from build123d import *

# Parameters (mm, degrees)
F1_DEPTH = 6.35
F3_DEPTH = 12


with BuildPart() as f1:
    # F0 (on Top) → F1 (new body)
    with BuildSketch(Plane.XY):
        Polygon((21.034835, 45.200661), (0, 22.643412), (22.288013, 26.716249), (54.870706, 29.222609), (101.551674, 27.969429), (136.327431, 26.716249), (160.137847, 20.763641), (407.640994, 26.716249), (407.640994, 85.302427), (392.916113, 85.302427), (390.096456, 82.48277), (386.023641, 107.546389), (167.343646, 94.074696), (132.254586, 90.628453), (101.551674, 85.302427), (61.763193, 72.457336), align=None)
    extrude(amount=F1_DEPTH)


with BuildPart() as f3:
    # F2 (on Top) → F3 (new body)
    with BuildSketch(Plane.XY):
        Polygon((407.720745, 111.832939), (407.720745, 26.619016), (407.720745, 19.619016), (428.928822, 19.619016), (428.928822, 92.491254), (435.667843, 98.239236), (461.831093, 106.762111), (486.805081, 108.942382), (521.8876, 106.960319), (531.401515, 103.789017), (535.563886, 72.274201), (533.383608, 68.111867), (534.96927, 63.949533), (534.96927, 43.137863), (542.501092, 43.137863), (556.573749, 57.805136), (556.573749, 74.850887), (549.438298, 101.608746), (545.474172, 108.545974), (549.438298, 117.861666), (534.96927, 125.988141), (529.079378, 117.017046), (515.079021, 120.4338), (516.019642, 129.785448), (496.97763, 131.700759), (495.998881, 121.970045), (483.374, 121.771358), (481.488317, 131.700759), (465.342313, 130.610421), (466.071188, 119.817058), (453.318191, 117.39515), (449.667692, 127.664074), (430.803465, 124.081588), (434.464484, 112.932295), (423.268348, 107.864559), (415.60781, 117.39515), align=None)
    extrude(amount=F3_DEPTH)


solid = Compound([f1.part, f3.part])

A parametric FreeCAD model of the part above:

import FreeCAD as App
import Part
import Sketcher
from FreeCAD import Vector
Q = App.Units.Quantity

doc = App.newDocument("Part")
body = doc.addObject("PartDesign::Body", "Body")

# Sketch on XY plane
sketch1 = body.newObject("Sketcher::SketchObject", "Sketch")
sketch1.AttachmentSupport = (doc.getObject("XY_Plane"), [""])
sketch1.MapMode = "FlatFace"
sketch1.addGeometry([
    Part.LineSegment(Vector(21, 45.2, 0), Vector(0, 22.6, 0)),  # 0
    Part.LineSegment(Vector(0, 22.6, 0), Vector(22.3, 26.7, 0)),  # 1
    Part.LineSegment(Vector(22.3, 26.7, 0), Vector(54.9, 29.2, 0)),  # 2
    Part.LineSegment(Vector(54.9, 29.2, 0), Vector(101.6, 28, 0)),  # 3
    Part.LineSegment(Vector(101.6, 28, 0), Vector(136.3, 26.7, 0)),  # 4
    Part.LineSegment(Vector(136.3, 26.7, 0), Vector(160.1, 20.8, 0)),  # 5
    Part.LineSegment(Vector(160.1, 20.8, 0), Vector(407.6, 26.7, 0)),  # 6
    Part.LineSegment(Vector(407.6, 26.7, 0), Vector(407.6, 85.3, 0)),  # 7
    Part.LineSegment(Vector(407.6, 85.3, 0), Vector(392.9, 85.3, 0)),  # 8
    Part.LineSegment(Vector(392.9, 85.3, 0), Vector(390.1, 82.5, 0)),  # 9
    Part.LineSegment(Vector(390.1, 82.5, 0), Vector(386, 107.5, 0)),  # 10
    Part.LineSegment(Vector(386, 107.5, 0), Vector(167.3, 94.1, 0)),  # 11
    Part.LineSegment(Vector(167.3, 94.1, 0), Vector(132.3, 90.6, 0)),  # 12
    Part.LineSegment(Vector(132.3, 90.6, 0), Vector(101.6, 85.3, 0)),  # 13
    Part.LineSegment(Vector(101.6, 85.3, 0), Vector(61.8, 72.5, 0)),  # 14
    Part.LineSegment(Vector(61.8, 72.5, 0), Vector(21, 45.2, 0)),  # 15
], False)
sketch1.addConstraint([
    Sketcher.Constraint("Coincident", 0, 2, 1, 1),
    Sketcher.Constraint("Coincident", 1, 2, 2, 1),
    Sketcher.Constraint("Coincident", 2, 2, 3, 1),
    Sketcher.Constraint("Coincident", 3, 2, 4, 1),
    Sketcher.Constraint("Coincident", 4, 2, 5, 1),
    Sketcher.Constraint("Coincident", 5, 2, 6, 1),
    Sketcher.Constraint("Coincident", 6, 2, 7, 1),
    Sketcher.Constraint("Coincident", 7, 2, 8, 1),
    Sketcher.Constraint("Coincident", 8, 2, 9, 1),
    Sketcher.Constraint("Coincident", 9, 2, 10, 1),
    Sketcher.Constraint("Coincident", 10, 2, 11, 1),
    Sketcher.Constraint("Coincident", 11, 2, 12, 1),
    Sketcher.Constraint("Coincident", 12, 2, 13, 1),
    Sketcher.Constraint("Coincident", 13, 2, 14, 1),
    Sketcher.Constraint("Coincident", 14, 2, 15, 1),
    Sketcher.Constraint("Coincident", 15, 2, 0, 1),
    Sketcher.Constraint("Vertical", 7),
    Sketcher.Constraint("Horizontal", 8),
    Sketcher.Constraint("PointOnObject", 0, 2, -2),
    Sketcher.Constraint("Horizontal", 1, 2, 4, 2),
    Sketcher.Constraint("Horizontal", 4, 2, 6, 2),
    Sketcher.Constraint("Horizontal", 8, 2, 13, 2),
    Sketcher.Constraint("Vertical", 3, 2, 13, 2),
    Sketcher.Constraint("Angle", 9, Q("-135 deg")),
    Sketcher.Constraint("DistanceX", 8, 2, 8, 1, Q("14.724881 mm")),
    Sketcher.Constraint("DistanceX", 5, 2, 11, 2, Q("7.205799 mm")),
    Sketcher.Constraint("Distance", 0, Q("30.843051 mm")),
    Sketcher.Constraint("Distance", 2, Q("32.678949 mm")),
    Sketcher.Constraint("Distance", 4, Q("34.798329 mm")),
    Sketcher.Constraint("Distance", 6, Q("247.574719 mm")),
    Sketcher.Constraint("Distance", 11, Q("219.094561 mm")),
    Sketcher.Constraint("Distance", 12, Q("35.257889 mm")),
    Sketcher.Constraint("Distance", 13, Q("31.16144 mm")),
    Sketcher.Constraint("Distance", 14, Q("41.81052 mm")),
    Sketcher.Constraint("DistanceY", 7, 1, 7, 2, Q("58.586178 mm")),
    Sketcher.Constraint("DistanceY", -1, 1, 1, 2, Q("26.716249 mm")),
    Sketcher.Constraint("DistanceY", -1, 1, 2, 2, Q("29.222609 mm")),
    Sketcher.Constraint("DistanceY", -1, 1, 3, 2, Q("27.969429 mm")),
    Sketcher.Constraint("DistanceX", -1, 1, 4, 2, Q("136.327431 mm")),
    Sketcher.Constraint("DistanceY", -1, 1, 5, 2, Q("20.763641 mm")),
    Sketcher.Constraint("DistanceY", -1, 1, 9, 2, Q("82.48277 mm")),
    Sketcher.Constraint("DistanceX", -1, 1, 10, 2, Q("386.023641 mm")),
    Sketcher.Constraint("DistanceY", -1, 1, 10, 2, Q("107.546389 mm")),
    Sketcher.Constraint("DistanceY", -1, 1, 15, 2, Q("45.200661 mm")),
    Sketcher.Constraint("DistanceX", 2, 2, 3, 2, Q("46.680968 mm")),
    Sketcher.Constraint("DistanceX", 2, 2, 5, 2, Q("105.267141 mm")),
    Sketcher.Constraint("DistanceY", 5, 2, 0, 2, Q("1.879771 mm")),
    Sketcher.Constraint("DistanceX", 14, 2, 13, 2, Q("39.788481 mm")),
])
pad1 = body.newObject("PartDesign::Pad", "Pad")
pad1.Profile = sketch1
pad1.Length = 6.35
body2 = doc.addObject("PartDesign::Body", "Body001")

# Sketch on XY plane
sketch2 = body2.newObject("Sketcher::SketchObject", "Sketch001")
sketch2.AttachmentSupport = (doc.getObject("XY_Plane001"), [""])
sketch2.MapMode = "FlatFace"
sketch2.addGeometry([
    Part.LineSegment(Vector(407.7, 111.8, 0), Vector(407.7, 19.6, 0)),  # 0
    Part.LineSegment(Vector(407.7, 19.6, 0), Vector(428.9, 19.6, 0)),  # 1
    Part.LineSegment(Vector(428.9, 19.6, 0), Vector(428.9, 92.5, 0)),  # 2
    Part.LineSegment(Vector(428.9, 92.5, 0), Vector(435.7, 98.2, 0)),  # 3
    Part.LineSegment(Vector(435.7, 98.2, 0), Vector(461.8, 106.8, 0)),  # 4
    Part.LineSegment(Vector(461.8, 106.8, 0), Vector(486.8, 108.9, 0)),  # 5
    Part.LineSegment(Vector(486.8, 108.9, 0), Vector(521.9, 107, 0)),  # 6
    Part.LineSegment(Vector(521.9, 107, 0), Vector(531.4, 103.8, 0)),  # 7
    Part.LineSegment(Vector(531.4, 103.8, 0), Vector(535.6, 72.3, 0)),  # 8
    Part.LineSegment(Vector(535.6, 72.3, 0), Vector(533.4, 68.1, 0)),  # 9
    Part.LineSegment(Vector(533.4, 68.1, 0), Vector(535, 63.9, 0)),  # 10
    Part.LineSegment(Vector(535, 63.9, 0), Vector(535, 43.1, 0)),  # 11
    Part.LineSegment(Vector(535, 43.1, 0), Vector(542.5, 43.1, 0)),  # 12
    Part.LineSegment(Vector(542.5, 43.1, 0), Vector(556.6, 57.8, 0)),  # 13
    Part.LineSegment(Vector(556.6, 57.8, 0), Vector(556.6, 74.9, 0)),  # 14
    Part.LineSegment(Vector(556.6, 74.9, 0), Vector(549.4, 101.6, 0)),  # 15
    Part.LineSegment(Vector(549.4, 101.6, 0), Vector(545.5, 108.5, 0)),  # 16
    Part.LineSegment(Vector(545.5, 108.5, 0), Vector(549.4, 117.9, 0)),  # 17
    Part.LineSegment(Vector(549.4, 117.9, 0), Vector(535, 126, 0)),  # 18
    Part.LineSegment(Vector(535, 126, 0), Vector(529.1, 117, 0)),  # 19
    Part.LineSegment(Vector(529.1, 117, 0), Vector(515.1, 120.4, 0)),  # 20
    Part.LineSegment(Vector(515.1, 120.4, 0), Vector(516, 129.8, 0)),  # 21
    Part.LineSegment(Vector(516, 129.8, 0), Vector(497, 131.7, 0)),  # 22
    Part.LineSegment(Vector(497, 131.7, 0), Vector(496, 122, 0)),  # 23
    Part.LineSegment(Vector(496, 122, 0), Vector(483.4, 121.8, 0)),  # 24
    Part.LineSegment(Vector(483.4, 121.8, 0), Vector(481.5, 131.7, 0)),  # 25
    Part.LineSegment(Vector(481.5, 131.7, 0), Vector(465.3, 130.6, 0)),  # 26
    Part.LineSegment(Vector(465.3, 130.6, 0), Vector(466.1, 119.8, 0)),  # 27
    Part.LineSegment(Vector(466.1, 119.8, 0), Vector(453.3, 117.4, 0)),  # 28
    Part.LineSegment(Vector(453.3, 117.4, 0), Vector(449.7, 127.7, 0)),  # 29
    Part.LineSegment(Vector(449.7, 127.7, 0), Vector(430.8, 124.1, 0)),  # 30
    Part.LineSegment(Vector(430.8, 124.1, 0), Vector(434.5, 112.9, 0)),  # 31
    Part.LineSegment(Vector(434.5, 112.9, 0), Vector(423.3, 107.9, 0)),  # 32
    Part.LineSegment(Vector(423.3, 107.9, 0), Vector(415.6, 117.4, 0)),  # 33
    Part.LineSegment(Vector(415.6, 117.4, 0), Vector(407.7, 111.8, 0)),  # 34
], False)
sketch2.addConstraint([
    Sketcher.Constraint("Coincident", 0, 2, 1, 1),
    Sketcher.Constraint("Coincident", 1, 2, 2, 1),
    Sketcher.Constraint("Coincident", 2, 2, 3, 1),
    Sketcher.Constraint("Coincident", 3, 2, 4, 1),
    Sketcher.Constraint("Coincident", 4, 2, 5, 1),
    Sketcher.Constraint("Coincident", 5, 2, 6, 1),
    Sketcher.Constraint("Coincident", 6, 2, 7, 1),
    Sketcher.Constraint("Coincident", 7, 2, 8, 1),
    Sketcher.Constraint("Coincident", 8, 2, 9, 1),
    Sketcher.Constraint("Coincident", 9, 2, 10, 1),
    Sketcher.Constraint("Coincident", 10, 2, 11, 1),
    Sketcher.Constraint("Coincident", 11, 2, 12, 1),
    Sketcher.Constraint("Coincident", 12, 2, 13, 1),
    Sketcher.Constraint("Coincident", 13, 2, 14, 1),
    Sketcher.Constraint("Coincident", 14, 2, 15, 1),
    Sketcher.Constraint("Coincident", 15, 2, 16, 1),
    Sketcher.Constraint("Coincident", 16, 2, 17, 1),
    Sketcher.Constraint("Coincident", 17, 2, 18, 1),
    Sketcher.Constraint("Coincident", 18, 2, 19, 1),
    Sketcher.Constraint("Coincident", 19, 2, 20, 1),
    Sketcher.Constraint("Coincident", 20, 2, 21, 1),
    Sketcher.Constraint("Coincident", 21, 2, 22, 1),
    Sketcher.Constraint("Coincident", 22, 2, 23, 1),
    Sketcher.Constraint("Coincident", 23, 2, 24, 1),
    Sketcher.Constraint("Coincident", 24, 2, 25, 1),
    Sketcher.Constraint("Coincident", 25, 2, 26, 1),
    Sketcher.Constraint("Coincident", 26, 2, 27, 1),
    Sketcher.Constraint("Coincident", 27, 2, 28, 1),
    Sketcher.Constraint("Coincident", 28, 2, 29, 1),
    Sketcher.Constraint("Coincident", 29, 2, 30, 1),
    Sketcher.Constraint("Coincident", 30, 2, 31, 1),
    Sketcher.Constraint("Coincident", 31, 2, 32, 1),
    Sketcher.Constraint("Coincident", 32, 2, 33, 1),
    Sketcher.Constraint("Coincident", 33, 2, 34, 1),
    Sketcher.Constraint("Coincident", 34, 2, 0, 1),
    Sketcher.Constraint("Vertical", 0),
    Sketcher.Constraint("Horizontal", 1),
    Sketcher.Constraint("Vertical", 2),
    Sketcher.Constraint("Vertical", 11),
    Sketcher.Constraint("Horizontal", 12),
    Sketcher.Constraint("Vertical", 14),
    Sketcher.Constraint("Perpendicular", 21, 22),
    Sketcher.Constraint("Perpendicular", 22, 23),
    Sketcher.Constraint("Perpendicular", 26, 27),
    Sketcher.Constraint("Perpendicular", 25, 28),
    Sketcher.Constraint("Parallel", 28, 30),
    Sketcher.Constraint("Horizontal", 22, 2, 25, 2),
    Sketcher.Constraint("Horizontal", 28, 2, 33, 2),
    Sketcher.Constraint("Vertical", 15, 2, 17, 2),
    Sketcher.Constraint("Vertical", 11, 2, 18, 2),
    Sketcher.Constraint("DistanceX", -1, 1, 24, 2, Q("483.374 mm")),
    Sketcher.Constraint("DistanceX", 12, 1, 12, 2, Q("7.531822 mm")),
    Sketcher.Constraint("DistanceY", 11, 2, 11, 1, Q("20.81167 mm")),
    Sketcher.Constraint("DistanceY", 14, 1, 14, 2, Q("17.045751 mm")),
    Sketcher.Constraint("DistanceX", -1, 1, 6, 2, Q("521.8876 mm")),
    Sketcher.Constraint("DistanceY", -1, 1, 8, 2, Q("72.274201 mm")),
    Sketcher.Constraint("DistanceX", -1, 1, 15, 2, Q("549.438298 mm")),
    Sketcher.Constraint("DistanceY", -1, 1, 20, 2, Q("120.4338 mm")),
    Sketcher.Constraint("DistanceY", 7, 2, 6, 2, Q("3.171302 mm")),
    Sketcher.Constraint("DistanceX", 18, 2, 16, 2, Q("10.504902 mm")),
    Sketcher.Constraint("DistanceX", 5, 2, 23, 2, Q("9.1938 mm")),
    Sketcher.Constraint("DistanceY", 24, 2, 22, 2, Q("9.929401 mm")),
    Sketcher.Constraint("DistanceY", 27, 2, 24, 2, Q("1.9543 mm")),
    Sketcher.Constraint("DistanceX", 28, 2, 4, 2, Q("8.512902 mm")),
    Sketcher.Constraint("DistanceX", 29, 2, 28, 2, Q("3.650499 mm")),
    Sketcher.Constraint("Distance", 3, Q("8.857409 mm")),
    Sketcher.Constraint("Distance", 4, Q("27.516451 mm")),
    Sketcher.Constraint("Distance", 5, Q("25.068978 mm")),
    Sketcher.Constraint("Distance", 9, Q("4.698791 mm")),
    Sketcher.Constraint("Distance", 10, Q("4.454138 mm")),
    Sketcher.Constraint("Distance", 13, Q("20.326548 mm")),
    Sketcher.Constraint("Distance", 17, Q("10.124051 mm")),
    Sketcher.Constraint("Distance", 18, Q("16.59495 mm")),
    Sketcher.Constraint("Distance", 25, Q("10.106869 mm")),
    Sketcher.Constraint("Distance", 28, Q("12.980931 mm")),
    Sketcher.Constraint("Distance", 31, Q("11.734982 mm")),
    Sketcher.Constraint("DistanceX", 1, 1, 1, 2, Q("21.208077 mm")),
    Sketcher.Constraint("DistanceY", 0, 2, 0, 1, Q("92.213923 mm")),
    Sketcher.Constraint("DistanceY", 2, 1, 2, 2, Q("72.872238 mm")),
    Sketcher.Constraint("DistanceY", -1, 1, 4, 2, Q("106.762111 mm")),
    Sketcher.Constraint("DistanceX", -1, 1, 5, 2, Q("486.805081 mm")),
    Sketcher.Constraint("DistanceY", -1, 1, 5, 2, Q("108.942382 mm")),
    Sketcher.Constraint("DistanceY", -1, 1, 6, 2, Q("106.960319 mm")),
    Sketcher.Constraint("DistanceX", -1, 1, 9, 2, Q("533.383608 mm")),
    Sketcher.Constraint("DistanceX", -1, 1, 10, 2, Q("534.96927 mm")),
    Sketcher.Constraint("DistanceX", -1, 1, 13, 2, Q("556.573749 mm")),
    Sketcher.Constraint("DistanceY", -1, 1, 18, 2, Q("125.988141 mm")),
    Sketcher.Constraint("DistanceX", -1, 1, 19, 2, Q("529.079378 mm")),
    Sketcher.Constraint("DistanceX", -1, 1, 20, 2, Q("515.079021 mm")),
    Sketcher.Constraint("DistanceX", -1, 1, 21, 2, Q("516.019642 mm")),
    Sketcher.Constraint("DistanceY", -1, 1, 21, 2, Q("129.785448 mm")),
    Sketcher.Constraint("DistanceX", -1, 1, 22, 2, Q("496.97763 mm")),
    Sketcher.Constraint("DistanceY", -1, 1, 26, 2, Q("130.610421 mm")),
    Sketcher.Constraint("DistanceX", -1, 1, 32, 2, Q("423.268348 mm")),
    Sketcher.Constraint("DistanceY", -1, 1, 32, 2, Q("107.864559 mm")),
    Sketcher.Constraint("DistanceX", -1, 1, 33, 2, Q("415.60781 mm")),
    Sketcher.Constraint("DistanceY", -1, 1, 34, 2, Q("111.832939 mm")),
    Sketcher.Constraint("DistanceX", 2, 2, 3, 2, Q("6.739021 mm")),
    Sketcher.Constraint("DistanceX", 7, 2, 8, 2, Q("4.162371 mm")),
    Sketcher.Constraint("DistanceX", 9, 2, 8, 2, Q("2.180278 mm")),
    Sketcher.Constraint("DistanceY", 15, 2, 7, 2, Q("2.180271 mm")),
    Sketcher.Constraint("DistanceY", 7, 2, 19, 2, Q("13.228029 mm")),
    Sketcher.Constraint("DistanceY", 3, 2, 30, 2, Q("25.842352 mm")),
    Sketcher.Constraint("DistanceX", 30, 2, 31, 2, Q("3.661019 mm")),
    Sketcher.Constraint("DistanceX", 31, 2, 3, 2, Q("1.203359 mm")),
])
pad2 = body2.newObject("PartDesign::Pad", "Pad001")
pad2.Profile = sketch2
pad2.Length = 12

doc.recompute()
